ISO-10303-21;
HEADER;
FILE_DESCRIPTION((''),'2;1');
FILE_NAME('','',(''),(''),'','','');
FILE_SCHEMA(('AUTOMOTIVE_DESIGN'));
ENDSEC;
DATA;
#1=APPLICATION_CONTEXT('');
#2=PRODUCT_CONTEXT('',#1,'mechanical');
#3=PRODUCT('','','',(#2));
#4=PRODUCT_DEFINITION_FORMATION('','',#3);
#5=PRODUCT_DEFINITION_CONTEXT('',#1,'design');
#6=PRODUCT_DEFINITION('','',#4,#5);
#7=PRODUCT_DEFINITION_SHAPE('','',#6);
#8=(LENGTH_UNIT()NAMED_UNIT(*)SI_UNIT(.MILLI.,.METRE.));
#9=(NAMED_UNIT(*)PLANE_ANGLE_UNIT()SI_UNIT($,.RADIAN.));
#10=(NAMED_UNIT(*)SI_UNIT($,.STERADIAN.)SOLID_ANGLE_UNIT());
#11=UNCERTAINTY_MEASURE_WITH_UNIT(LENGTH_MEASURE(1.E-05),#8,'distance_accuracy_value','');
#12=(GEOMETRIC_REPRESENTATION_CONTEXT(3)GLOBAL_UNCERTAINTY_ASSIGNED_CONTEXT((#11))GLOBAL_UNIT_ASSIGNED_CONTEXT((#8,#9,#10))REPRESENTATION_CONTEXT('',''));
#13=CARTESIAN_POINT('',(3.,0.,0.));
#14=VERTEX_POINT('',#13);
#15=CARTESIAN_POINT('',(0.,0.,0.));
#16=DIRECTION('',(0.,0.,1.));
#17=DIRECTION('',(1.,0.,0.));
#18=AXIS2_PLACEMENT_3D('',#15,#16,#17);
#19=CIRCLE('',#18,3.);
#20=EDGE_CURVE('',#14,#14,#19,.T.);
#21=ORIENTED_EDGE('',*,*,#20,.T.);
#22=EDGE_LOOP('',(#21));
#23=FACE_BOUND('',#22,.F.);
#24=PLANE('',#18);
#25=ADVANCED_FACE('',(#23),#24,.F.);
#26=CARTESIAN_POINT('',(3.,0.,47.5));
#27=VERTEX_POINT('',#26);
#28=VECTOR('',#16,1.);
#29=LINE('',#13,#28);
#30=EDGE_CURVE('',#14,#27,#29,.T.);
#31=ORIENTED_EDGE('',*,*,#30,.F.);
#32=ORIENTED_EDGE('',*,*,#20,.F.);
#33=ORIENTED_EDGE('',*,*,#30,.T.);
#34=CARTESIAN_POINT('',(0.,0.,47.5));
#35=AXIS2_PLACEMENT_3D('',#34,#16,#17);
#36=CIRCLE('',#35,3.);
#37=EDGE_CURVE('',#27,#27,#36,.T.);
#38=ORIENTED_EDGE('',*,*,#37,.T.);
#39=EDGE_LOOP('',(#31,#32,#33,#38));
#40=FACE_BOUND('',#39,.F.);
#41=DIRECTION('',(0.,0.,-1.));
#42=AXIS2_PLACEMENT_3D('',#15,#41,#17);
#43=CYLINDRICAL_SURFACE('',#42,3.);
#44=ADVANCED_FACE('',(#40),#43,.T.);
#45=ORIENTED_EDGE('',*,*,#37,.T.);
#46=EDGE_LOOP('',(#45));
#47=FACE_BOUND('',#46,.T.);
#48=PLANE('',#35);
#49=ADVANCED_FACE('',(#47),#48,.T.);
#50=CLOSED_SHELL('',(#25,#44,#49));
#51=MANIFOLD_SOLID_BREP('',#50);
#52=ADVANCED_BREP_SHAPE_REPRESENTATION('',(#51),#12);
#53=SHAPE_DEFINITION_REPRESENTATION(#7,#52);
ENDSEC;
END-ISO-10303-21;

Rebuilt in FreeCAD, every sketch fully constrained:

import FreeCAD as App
import Part
import Sketcher

doc = App.newDocument("Part")
body = doc.addObject("PartDesign::Body", "Body")

sketch1 = body.newObject("Sketcher::SketchObject", "Sketch")
sketch1.AttachmentSupport = (doc.getObject("XY_Plane"), [""])
sketch1.MapMode = "FlatFace"
sketch1.addGeometry(Part.Circle(App.Vector(0, 0, 0), App.Vector(0, 0, 1), 3), False)
sketch1.addConstraint([
    Sketcher.Constraint("Coincident", 0, 3, -1, 1),
    Sketcher.Constraint("Diameter", 0, 6.0),
])
pad1 = body.newObject("PartDesign::Pad", "Pad")
pad1.Profile = sketch1
pad1.Length = 47.5

doc.recompute()
